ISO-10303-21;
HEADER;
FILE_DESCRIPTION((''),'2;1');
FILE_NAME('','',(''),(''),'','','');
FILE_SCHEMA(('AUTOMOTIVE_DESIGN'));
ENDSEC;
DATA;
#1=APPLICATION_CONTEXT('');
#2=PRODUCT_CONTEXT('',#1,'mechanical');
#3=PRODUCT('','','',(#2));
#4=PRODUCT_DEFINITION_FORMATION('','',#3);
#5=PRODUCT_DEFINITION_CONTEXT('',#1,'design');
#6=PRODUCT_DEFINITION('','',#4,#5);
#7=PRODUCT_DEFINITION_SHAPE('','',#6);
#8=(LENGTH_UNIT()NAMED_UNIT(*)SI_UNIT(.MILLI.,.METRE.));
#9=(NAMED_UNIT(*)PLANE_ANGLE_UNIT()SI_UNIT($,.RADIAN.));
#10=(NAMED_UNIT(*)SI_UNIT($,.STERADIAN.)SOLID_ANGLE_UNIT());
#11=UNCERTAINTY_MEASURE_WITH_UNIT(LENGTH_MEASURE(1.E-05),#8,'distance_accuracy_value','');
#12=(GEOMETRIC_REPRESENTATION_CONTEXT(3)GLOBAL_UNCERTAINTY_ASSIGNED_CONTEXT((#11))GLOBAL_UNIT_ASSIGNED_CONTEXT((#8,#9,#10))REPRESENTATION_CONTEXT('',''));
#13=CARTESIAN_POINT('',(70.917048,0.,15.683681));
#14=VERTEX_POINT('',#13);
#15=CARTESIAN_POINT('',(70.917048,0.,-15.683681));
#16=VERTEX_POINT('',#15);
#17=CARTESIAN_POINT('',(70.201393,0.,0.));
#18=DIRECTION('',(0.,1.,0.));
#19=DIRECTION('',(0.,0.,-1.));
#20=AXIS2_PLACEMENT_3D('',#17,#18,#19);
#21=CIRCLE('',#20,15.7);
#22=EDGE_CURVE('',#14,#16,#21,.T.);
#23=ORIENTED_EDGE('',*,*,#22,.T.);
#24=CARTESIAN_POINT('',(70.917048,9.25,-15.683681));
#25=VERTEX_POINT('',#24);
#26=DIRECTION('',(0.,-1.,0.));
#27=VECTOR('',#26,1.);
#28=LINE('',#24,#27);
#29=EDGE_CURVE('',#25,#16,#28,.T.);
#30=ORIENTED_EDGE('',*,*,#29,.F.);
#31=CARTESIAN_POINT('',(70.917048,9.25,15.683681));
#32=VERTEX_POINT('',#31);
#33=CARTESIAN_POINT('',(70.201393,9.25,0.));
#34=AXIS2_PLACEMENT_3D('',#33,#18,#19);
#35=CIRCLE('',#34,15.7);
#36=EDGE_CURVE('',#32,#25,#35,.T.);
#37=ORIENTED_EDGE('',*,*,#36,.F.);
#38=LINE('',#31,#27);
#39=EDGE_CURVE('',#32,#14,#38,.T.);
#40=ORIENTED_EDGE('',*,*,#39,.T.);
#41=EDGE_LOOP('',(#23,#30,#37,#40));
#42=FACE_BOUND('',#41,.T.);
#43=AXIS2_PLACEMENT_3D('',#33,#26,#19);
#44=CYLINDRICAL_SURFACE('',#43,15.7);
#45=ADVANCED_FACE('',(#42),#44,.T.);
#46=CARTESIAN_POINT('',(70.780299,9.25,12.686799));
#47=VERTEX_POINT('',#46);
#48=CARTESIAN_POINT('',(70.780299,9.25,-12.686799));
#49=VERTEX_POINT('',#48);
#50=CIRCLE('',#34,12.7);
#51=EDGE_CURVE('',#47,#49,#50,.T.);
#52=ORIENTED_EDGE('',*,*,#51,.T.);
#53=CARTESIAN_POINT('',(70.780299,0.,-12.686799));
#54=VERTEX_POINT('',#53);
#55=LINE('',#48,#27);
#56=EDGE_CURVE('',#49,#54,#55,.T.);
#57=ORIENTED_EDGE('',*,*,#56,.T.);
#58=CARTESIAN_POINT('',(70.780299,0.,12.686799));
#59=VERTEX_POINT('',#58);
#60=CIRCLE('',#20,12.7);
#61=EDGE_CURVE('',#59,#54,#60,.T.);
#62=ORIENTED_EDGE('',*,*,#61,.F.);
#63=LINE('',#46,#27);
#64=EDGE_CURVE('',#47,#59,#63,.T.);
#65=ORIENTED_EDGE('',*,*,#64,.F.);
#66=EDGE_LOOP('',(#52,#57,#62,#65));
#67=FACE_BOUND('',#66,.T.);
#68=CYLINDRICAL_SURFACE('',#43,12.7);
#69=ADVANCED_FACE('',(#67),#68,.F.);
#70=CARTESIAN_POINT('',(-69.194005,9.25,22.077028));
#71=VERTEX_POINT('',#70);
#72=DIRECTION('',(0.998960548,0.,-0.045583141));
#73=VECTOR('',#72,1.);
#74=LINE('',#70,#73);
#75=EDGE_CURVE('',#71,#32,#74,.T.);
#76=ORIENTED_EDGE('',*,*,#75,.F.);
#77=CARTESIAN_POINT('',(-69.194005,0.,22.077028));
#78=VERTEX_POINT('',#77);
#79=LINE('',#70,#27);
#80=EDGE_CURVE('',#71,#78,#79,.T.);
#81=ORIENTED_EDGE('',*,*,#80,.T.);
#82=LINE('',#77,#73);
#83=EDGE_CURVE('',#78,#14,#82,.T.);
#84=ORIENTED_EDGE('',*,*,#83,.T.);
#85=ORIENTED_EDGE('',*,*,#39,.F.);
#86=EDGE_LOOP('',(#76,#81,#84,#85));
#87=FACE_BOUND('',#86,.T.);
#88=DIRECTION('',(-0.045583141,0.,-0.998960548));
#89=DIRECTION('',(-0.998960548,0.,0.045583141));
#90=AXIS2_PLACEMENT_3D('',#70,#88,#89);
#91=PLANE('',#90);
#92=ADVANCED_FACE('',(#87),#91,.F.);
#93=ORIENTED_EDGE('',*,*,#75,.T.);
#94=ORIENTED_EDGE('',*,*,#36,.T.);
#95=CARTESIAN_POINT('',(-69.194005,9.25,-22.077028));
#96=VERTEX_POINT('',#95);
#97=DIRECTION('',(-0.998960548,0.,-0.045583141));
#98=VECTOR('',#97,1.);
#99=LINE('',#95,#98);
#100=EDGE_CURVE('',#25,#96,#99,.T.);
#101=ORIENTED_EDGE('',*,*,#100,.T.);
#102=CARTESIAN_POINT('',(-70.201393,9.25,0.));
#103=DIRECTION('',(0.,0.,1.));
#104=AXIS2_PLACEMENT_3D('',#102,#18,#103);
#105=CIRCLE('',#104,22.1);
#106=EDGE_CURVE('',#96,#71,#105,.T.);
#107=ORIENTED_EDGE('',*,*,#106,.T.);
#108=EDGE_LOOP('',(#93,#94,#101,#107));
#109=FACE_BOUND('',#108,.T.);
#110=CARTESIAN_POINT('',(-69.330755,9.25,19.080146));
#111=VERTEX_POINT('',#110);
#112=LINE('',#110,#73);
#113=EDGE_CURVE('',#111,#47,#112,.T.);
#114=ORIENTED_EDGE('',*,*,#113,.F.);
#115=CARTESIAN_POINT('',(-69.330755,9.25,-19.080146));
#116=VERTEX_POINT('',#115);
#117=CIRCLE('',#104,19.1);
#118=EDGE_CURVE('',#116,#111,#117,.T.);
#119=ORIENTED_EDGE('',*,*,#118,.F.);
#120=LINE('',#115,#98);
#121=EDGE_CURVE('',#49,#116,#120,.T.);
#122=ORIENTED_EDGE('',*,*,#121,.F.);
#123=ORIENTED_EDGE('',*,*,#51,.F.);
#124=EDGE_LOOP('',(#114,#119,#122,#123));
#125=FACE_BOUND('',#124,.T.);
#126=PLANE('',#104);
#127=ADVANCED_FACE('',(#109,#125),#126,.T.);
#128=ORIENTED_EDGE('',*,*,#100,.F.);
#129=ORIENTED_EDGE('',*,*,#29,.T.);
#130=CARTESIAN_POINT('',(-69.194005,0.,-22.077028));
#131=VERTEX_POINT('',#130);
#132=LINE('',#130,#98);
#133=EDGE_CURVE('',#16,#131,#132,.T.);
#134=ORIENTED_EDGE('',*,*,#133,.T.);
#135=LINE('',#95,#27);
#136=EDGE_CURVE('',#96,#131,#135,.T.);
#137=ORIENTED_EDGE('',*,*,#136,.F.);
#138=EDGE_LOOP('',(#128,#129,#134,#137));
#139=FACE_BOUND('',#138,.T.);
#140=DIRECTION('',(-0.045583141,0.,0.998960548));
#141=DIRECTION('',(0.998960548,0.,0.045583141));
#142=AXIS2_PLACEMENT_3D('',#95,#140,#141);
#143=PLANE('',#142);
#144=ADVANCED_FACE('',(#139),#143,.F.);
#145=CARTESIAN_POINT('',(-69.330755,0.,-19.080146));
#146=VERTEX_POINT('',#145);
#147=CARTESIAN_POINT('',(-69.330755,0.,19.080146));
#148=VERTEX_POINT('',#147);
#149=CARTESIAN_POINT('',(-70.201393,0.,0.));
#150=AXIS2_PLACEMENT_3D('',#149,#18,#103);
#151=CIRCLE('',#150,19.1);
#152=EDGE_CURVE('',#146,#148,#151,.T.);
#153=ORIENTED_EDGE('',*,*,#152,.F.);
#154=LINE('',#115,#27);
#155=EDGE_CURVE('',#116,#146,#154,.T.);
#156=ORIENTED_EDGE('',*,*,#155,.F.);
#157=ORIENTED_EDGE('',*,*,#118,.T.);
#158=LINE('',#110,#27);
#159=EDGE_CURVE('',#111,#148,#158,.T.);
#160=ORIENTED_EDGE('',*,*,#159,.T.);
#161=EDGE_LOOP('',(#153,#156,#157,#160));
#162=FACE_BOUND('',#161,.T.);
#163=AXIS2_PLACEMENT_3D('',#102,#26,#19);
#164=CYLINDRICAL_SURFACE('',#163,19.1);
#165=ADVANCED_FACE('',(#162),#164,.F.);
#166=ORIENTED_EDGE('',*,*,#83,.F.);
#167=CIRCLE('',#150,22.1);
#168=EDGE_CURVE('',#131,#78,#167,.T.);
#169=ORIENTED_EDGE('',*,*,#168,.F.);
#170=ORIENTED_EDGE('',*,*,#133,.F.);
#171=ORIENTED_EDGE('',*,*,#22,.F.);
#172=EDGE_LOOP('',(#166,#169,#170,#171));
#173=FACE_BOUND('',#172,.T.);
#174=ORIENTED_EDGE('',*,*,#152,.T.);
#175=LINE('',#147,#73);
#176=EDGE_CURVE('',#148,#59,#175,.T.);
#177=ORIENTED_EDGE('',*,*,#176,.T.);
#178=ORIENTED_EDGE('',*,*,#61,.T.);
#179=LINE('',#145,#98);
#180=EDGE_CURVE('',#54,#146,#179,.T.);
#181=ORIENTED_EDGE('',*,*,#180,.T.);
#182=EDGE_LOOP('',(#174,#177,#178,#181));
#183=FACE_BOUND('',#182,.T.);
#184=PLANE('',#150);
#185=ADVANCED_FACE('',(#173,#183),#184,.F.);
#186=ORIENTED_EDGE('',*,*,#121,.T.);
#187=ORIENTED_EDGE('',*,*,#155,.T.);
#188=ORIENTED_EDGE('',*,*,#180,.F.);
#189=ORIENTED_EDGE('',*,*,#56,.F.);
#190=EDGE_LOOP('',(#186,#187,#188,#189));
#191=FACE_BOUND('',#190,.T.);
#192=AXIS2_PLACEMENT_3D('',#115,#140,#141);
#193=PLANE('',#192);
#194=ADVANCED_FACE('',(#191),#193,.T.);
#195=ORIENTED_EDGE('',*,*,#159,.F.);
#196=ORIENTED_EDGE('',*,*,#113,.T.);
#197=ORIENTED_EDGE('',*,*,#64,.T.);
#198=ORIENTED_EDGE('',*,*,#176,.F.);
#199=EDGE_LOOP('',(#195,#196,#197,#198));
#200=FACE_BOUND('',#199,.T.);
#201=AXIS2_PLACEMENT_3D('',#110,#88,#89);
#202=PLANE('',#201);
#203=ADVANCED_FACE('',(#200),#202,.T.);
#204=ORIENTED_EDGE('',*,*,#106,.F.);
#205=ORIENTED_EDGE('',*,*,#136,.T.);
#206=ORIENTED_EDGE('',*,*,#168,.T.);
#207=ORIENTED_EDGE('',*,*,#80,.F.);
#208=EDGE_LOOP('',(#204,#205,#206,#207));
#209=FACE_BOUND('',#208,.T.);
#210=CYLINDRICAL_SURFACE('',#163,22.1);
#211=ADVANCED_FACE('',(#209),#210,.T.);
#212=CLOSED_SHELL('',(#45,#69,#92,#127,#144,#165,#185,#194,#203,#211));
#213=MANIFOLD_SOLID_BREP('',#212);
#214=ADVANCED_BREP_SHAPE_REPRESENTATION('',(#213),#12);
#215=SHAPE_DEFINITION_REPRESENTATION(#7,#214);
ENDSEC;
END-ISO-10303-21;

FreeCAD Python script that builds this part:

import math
import FreeCAD as App
import Part
import Sketcher
from FreeCAD import Vector

doc = App.newDocument("Part")
body = doc.addObject("PartDesign::Body", "Body")

# Sketch on XZ plane
sketch1 = body.newObject("Sketcher::SketchObject", "Sketch")
sketch1.AttachmentSupport = (doc.getObject("XZ_Plane"), [""])
sketch1.MapMode = "FlatFace"
sketch1.addGeometry(Part.LineSegment(Vector(71, -16, 0), Vector(-69, -22, 0)), False)
sketch1.addGeometry(Part.ArcOfCircle(Part.Circle(Vector(-70, 0, 0), Vector(0, 0, 1), 22), math.radians(87), math.radians(273)), False)
sketch1.addGeometry(Part.LineSegment(Vector(-69, 22, 0), Vector(71, 16, 0)), False)
sketch1.addGeometry(Part.ArcOfCircle(Part.Circle(Vector(70, 0, 0), Vector(0, 0, 1), 16), math.radians(-87), math.radians(87)), False)
sketch1.addGeometry(Part.LineSegment(Vector(-69, -19, 0), Vector(71, -13, 0)), False)
sketch1.addGeometry(Part.ArcOfCircle(Part.Circle(Vector(70, 0, 0), Vector(0, 0, 1), 13), math.radians(-87), math.radians(87)), False)
sketch1.addGeometry(Part.LineSegment(Vector(71, 13, 0), Vector(-69, 19, 0)), False)
sketch1.addGeometry(Part.ArcOfCircle(Part.Circle(Vector(-70, 0, 0), Vector(0, 0, 1), 19), math.radians(87), math.radians(273)), False)
sketch1.addConstraint(Sketcher.Constraint("Tangent", 0, 2, 1, 2))
sketch1.addConstraint(Sketcher.Constraint("Tangent", 1, 1, 2, 1))
sketch1.addConstraint(Sketcher.Constraint("Tangent", 2, 2, 3, 2))
sketch1.addConstraint(Sketcher.Constraint("Tangent", 3, 1, 0, 1))
sketch1.addConstraint(Sketcher.Constraint("Tangent", 4, 2, 5, 1))
sketch1.addConstraint(Sketcher.Constraint("Tangent", 5, 2, 6, 1))
sketch1.addConstraint(Sketcher.Constraint("Tangent", 6, 2, 7, 1))
sketch1.addConstraint(Sketcher.Constraint("Tangent", 7, 2, 4, 1))
sketch1.addConstraint(Sketcher.Constraint("Coincident", 5, 3, 3, 3))
sketch1.addConstraint(Sketcher.Constraint("Coincident", 7, 3, 1, 3))
sketch1.addConstraint(Sketcher.Constraint("Symmetric", 1, 3, 3, 3, -1, 1))
sketch1.addConstraint(Sketcher.Constraint("PointOnObject", 1, 3, -1))
sketch1.addConstraint(Sketcher.Constraint("Parallel", 0, 4))
sketch1.addConstraint(Sketcher.Constraint("Radius", 1, 22.1))
sketch1.addConstraint(Sketcher.Constraint("Radius", 3, 15.7))
sketch1.addConstraint(Sketcher.Constraint("Radius", 5, 12.7))
sketch1.addConstraint(Sketcher.Constraint("DistanceX", -1, 1, 4, 2, 70.780299))
pad1 = body.newObject("PartDesign::Pad", "Pad")
pad1.Profile = sketch1
pad1.Length = 9.25
pad1.Reversed = True

doc.recompute()
